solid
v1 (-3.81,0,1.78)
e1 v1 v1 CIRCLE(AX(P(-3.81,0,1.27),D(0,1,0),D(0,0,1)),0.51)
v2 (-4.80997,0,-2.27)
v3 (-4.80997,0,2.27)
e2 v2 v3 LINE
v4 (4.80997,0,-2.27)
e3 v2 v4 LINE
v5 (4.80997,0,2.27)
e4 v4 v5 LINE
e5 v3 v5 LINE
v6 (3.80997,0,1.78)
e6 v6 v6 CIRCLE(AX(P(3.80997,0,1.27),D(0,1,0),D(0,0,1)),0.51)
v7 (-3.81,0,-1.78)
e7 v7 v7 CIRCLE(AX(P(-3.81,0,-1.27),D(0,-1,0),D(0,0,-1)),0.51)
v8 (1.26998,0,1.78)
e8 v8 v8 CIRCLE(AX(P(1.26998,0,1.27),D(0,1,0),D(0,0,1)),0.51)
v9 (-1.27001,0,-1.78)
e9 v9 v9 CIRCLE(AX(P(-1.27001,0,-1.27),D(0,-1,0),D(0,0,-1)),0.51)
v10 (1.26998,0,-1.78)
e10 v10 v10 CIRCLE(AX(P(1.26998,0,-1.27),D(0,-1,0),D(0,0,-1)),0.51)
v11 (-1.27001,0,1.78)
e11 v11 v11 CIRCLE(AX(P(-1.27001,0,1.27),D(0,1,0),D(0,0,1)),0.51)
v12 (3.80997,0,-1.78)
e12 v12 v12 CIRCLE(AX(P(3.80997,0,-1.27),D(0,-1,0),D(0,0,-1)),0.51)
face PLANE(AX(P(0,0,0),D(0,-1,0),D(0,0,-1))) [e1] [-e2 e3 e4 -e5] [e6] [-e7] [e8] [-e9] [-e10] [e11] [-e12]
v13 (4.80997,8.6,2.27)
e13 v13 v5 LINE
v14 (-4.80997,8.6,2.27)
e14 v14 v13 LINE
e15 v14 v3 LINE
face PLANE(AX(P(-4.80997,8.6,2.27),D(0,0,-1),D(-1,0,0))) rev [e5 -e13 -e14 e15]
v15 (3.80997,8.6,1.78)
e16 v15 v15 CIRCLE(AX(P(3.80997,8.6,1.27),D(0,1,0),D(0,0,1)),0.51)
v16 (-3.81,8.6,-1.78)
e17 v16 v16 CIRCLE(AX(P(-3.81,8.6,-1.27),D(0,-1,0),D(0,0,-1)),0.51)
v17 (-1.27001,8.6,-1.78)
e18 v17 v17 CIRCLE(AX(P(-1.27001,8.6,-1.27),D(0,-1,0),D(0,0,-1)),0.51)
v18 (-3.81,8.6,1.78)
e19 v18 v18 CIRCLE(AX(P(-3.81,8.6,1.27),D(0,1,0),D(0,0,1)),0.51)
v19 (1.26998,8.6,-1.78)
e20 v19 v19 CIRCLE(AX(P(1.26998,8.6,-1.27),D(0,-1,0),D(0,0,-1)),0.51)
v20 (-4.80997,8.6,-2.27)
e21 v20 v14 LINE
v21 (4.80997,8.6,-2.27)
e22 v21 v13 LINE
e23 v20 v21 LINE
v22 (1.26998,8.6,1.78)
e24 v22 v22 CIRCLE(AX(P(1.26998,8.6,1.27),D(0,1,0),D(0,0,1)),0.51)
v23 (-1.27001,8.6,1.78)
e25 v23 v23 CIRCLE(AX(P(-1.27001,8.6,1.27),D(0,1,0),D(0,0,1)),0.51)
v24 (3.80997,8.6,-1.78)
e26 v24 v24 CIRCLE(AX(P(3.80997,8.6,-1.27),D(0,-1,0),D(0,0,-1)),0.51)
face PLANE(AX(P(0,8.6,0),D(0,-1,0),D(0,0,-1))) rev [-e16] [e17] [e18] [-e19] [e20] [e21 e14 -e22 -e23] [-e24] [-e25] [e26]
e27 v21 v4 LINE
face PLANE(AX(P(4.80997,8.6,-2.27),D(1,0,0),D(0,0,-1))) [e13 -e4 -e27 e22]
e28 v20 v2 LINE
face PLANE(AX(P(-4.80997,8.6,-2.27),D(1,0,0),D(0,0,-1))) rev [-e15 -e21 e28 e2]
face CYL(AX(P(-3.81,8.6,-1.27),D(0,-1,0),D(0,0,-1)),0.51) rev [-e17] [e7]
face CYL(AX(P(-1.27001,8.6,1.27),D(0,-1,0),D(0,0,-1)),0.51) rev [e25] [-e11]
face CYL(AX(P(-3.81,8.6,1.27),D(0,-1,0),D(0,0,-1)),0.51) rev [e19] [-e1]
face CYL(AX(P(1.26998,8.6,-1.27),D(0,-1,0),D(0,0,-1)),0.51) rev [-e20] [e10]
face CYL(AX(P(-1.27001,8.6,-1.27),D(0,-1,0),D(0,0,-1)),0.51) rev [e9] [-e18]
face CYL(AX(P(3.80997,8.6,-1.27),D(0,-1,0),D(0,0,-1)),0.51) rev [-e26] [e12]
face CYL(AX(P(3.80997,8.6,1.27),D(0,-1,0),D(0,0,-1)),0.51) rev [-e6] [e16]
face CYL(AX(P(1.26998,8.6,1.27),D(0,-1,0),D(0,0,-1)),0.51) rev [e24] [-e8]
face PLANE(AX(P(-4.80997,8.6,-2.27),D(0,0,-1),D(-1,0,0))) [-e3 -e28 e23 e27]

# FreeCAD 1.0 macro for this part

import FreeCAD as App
import Part
import Sketcher

V = App.Vector
Q = App.Units.Quantity


def add_polygon(sketch, points):
    """Adds a closed chain of lines whose ends are joined by coincident constraints."""
    first, n = sketch.GeometryCount, len(points)
    for a, b in zip(points, points[1:] + points[:1]):
        sketch.addGeometry(Part.LineSegment(App.Vector(*a, 0), App.Vector(*b, 0)), False)
    for i in range(n):
        sketch.addConstraint(Sketcher.Constraint("Coincident", first + i, 2, first + (i + 1) % n, 1))

doc = App.newDocument("Part")
params = doc.addObject("Spreadsheet::Sheet", "Params")
for row, (alias, value) in enumerate([
    ("sketch1_diameter", "1.02 mm"),
    ("sketch1_height", "4.54 mm"),
    ("pad1_length", "8.6 mm"),
], start=1):
    params.set(f"A{row}", alias)
    params.set(f"B{row}", "=" + value)
    params.setAlias(f"B{row}", alias)

body = doc.addObject("PartDesign::Body", "Body")

sketch1 = body.newObject("Sketcher::SketchObject", "Sketch")
sketch1.AttachmentSupport = (doc.getObject("XZ_Plane"), [""])
sketch1.MapMode = "FlatFace"
add_polygon(sketch1, [(-4.8, -2.3), (-4.8, 2.3), (4.8, 2.3), (4.8, -2.3)])
sketch1.addGeometry(Part.Circle(V(-3.8, 1.3, 0), V(0, 0, 1), 0.5), False)
sketch1.addGeometry(Part.Circle(V(-1.3, 1.3, 0), V(0, 0, 1), 0.5), False)
sketch1.addGeometry(Part.Circle(V(1.3, 1.3, 0), V(0, 0, 1), 0.5), False)
sketch1.addGeometry(Part.Circle(V(3.8, 1.3, 0), V(0, 0, 1), 0.5), False)
sketch1.addGeometry(Part.Circle(V(-3.8, -1.3, 0), V(0, 0, 1), 0.5), False)
sketch1.addGeometry(Part.Circle(V(-1.3, -1.3, 0), V(0, 0, 1), 0.5), False)
sketch1.addGeometry(Part.Circle(V(1.3, -1.3, 0), V(0, 0, 1), 0.5), False)
sketch1.addGeometry(Part.Circle(V(3.8, -1.3, 0), V(0, 0, 1), 0.5), False)
sketch1.addConstraint(Sketcher.Constraint("Vertical", 0))
sketch1.addConstraint(Sketcher.Constraint("Horizontal", 1))
sketch1.addConstraint(Sketcher.Constraint("Vertical", 2))
sketch1.addConstraint(Sketcher.Constraint("Horizontal", 3))
sketch1.addConstraint(Sketcher.Constraint("Equal", 4, 5))
sketch1.addConstraint(Sketcher.Constraint("Equal", 5, 6))
sketch1.addConstraint(Sketcher.Constraint("Equal", 6, 7))
sketch1.addConstraint(Sketcher.Constraint("Equal", 7, 8))
sketch1.addConstraint(Sketcher.Constraint("Equal", 8, 9))
sketch1.addConstraint(Sketcher.Constraint("Equal", 9, 10))
sketch1.addConstraint(Sketcher.Constraint("Equal", 10, 11))
sketch1.addConstraint(Sketcher.Constraint("Symmetric", 0, 2, 2, 2, -1, 1))
sketch1.addConstraint(Sketcher.Constraint("Symmetric", 4, 3, 8, 3, -1))
sketch1.addConstraint(Sketcher.Constraint("Symmetric", 5, 3, 9, 3, -1))
sketch1.addConstraint(Sketcher.Constraint("Symmetric", 6, 3, 10, 3, -1))
sketch1.addConstraint(Sketcher.Constraint("Symmetric", 7, 3, 11, 3, -1))
sketch1.addConstraint(Sketcher.Constraint("Horizontal", 4, 3, 5, 3))
sketch1.addConstraint(Sketcher.Constraint("Horizontal", 5, 3, 6, 3))
sketch1.addConstraint(Sketcher.Constraint("Horizontal", 6, 3, 7, 3))
sketch1.addConstraint(Sketcher.Constraint("Diameter", 4, Q("1.02 mm")))
sketch1.addConstraint(Sketcher.Constraint("DistanceY", 4, 3, 0, 2, Q("1 mm")))
sketch1.addConstraint(Sketcher.Constraint("DistanceX", 7, 3, 1, 2, Q("1 mm")))
sketch1.addConstraint(Sketcher.Constraint("DistanceY", 0, 1, 0, 2, Q("4.54 mm")))
sketch1.addConstraint(Sketcher.Constraint("DistanceX", 4, 3, -1, 1, Q("3.81 mm")))
sketch1.addConstraint(Sketcher.Constraint("DistanceX", 1, 1, 1, 2, Q("9.61994 mm")))
sketch1.addConstraint(Sketcher.Constraint("DistanceX", 5, 3, -1, 1, Q("1.27001 mm")))
sketch1.addConstraint(Sketcher.Constraint("DistanceX", -1, 1, 6, 3, Q("1.26998 mm")))
sketch1.setExpression("Constraints[23]", "Params.sketch1_diameter")
sketch1.setExpression("Constraints[26]", "Params.sketch1_height")
pad1 = body.newObject("PartDesign::Pad", "Pad")
pad1.Profile = sketch1
pad1.setExpression("Length", "Params.pad1_length")
pad1.Reversed = True

doc.recompute()
